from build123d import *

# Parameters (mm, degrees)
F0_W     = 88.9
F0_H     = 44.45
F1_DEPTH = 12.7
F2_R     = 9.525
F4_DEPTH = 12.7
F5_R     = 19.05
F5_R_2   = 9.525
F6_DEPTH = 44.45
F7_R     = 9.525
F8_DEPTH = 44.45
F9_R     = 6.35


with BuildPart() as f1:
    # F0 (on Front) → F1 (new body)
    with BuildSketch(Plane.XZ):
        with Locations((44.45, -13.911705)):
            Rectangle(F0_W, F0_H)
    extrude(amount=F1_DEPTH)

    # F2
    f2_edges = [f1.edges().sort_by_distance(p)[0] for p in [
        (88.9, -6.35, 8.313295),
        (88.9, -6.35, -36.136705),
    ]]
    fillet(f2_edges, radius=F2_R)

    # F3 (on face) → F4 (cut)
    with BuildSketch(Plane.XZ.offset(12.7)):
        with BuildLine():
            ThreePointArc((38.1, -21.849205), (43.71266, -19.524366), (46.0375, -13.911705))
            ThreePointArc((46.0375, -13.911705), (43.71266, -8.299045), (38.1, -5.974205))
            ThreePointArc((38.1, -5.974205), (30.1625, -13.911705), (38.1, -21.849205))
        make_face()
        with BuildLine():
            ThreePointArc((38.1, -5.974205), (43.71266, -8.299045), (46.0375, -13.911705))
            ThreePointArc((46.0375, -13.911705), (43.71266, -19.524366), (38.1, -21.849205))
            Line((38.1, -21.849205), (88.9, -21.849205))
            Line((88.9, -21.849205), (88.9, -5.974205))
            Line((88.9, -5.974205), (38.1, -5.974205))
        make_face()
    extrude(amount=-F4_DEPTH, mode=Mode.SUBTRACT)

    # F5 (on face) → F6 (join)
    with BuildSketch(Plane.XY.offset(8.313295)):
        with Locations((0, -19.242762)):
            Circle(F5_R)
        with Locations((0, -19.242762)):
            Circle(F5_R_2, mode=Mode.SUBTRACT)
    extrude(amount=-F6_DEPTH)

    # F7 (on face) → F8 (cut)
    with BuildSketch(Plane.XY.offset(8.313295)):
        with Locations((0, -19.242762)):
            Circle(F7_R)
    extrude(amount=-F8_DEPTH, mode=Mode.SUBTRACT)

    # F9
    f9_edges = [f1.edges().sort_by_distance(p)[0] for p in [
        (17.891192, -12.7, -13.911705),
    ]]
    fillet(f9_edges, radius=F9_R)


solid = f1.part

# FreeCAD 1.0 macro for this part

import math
import FreeCAD as App
import Part
import Sketcher
from FreeCAD import Vector
Q = App.Units.Quantity


def edges_at(feature, points):
    """Names of the edges that pass closest to the given points."""
    edges = feature.Shape.Edges
    near = lambda p: min(range(len(edges)), key=lambda i: edges[i].distToShape(Part.Vertex(*p))[0])
    return sorted({f"Edge{near(p) + 1}" for p in points})

doc = App.newDocument("Part")
body = doc.addObject("PartDesign::Body", "Body")

# Sketch on XZ plane
sketch1 = body.newObject("Sketcher::SketchObject", "Sketch")
sketch1.AttachmentSupport = (doc.getObject("XZ_Plane"), [""])
sketch1.MapMode = "FlatFace"
sketch1.addGeometry([
    Part.LineSegment(Vector(0, 8, 0), Vector(0, -36, 0)),
    Part.LineSegment(Vector(0, -36, 0), Vector(89, -36, 0)),
    Part.LineSegment(Vector(89, -36, 0), Vector(89, 8, 0)),
    Part.LineSegment(Vector(89, 8, 0), Vector(0, 8, 0)),
], False)
sketch1.addConstraint([
    Sketcher.Constraint("Coincident", 0, 2, 1, 1),
    Sketcher.Constraint("Coincident", 1, 2, 2, 1),
    Sketcher.Constraint("Coincident", 2, 2, 3, 1),
    Sketcher.Constraint("Coincident", 3, 2, 0, 1),
    Sketcher.Constraint("Vertical", 0),
    Sketcher.Constraint("Horizontal", 1),
    Sketcher.Constraint("Vertical", 2),
    Sketcher.Constraint("Horizontal", 3),
    Sketcher.Constraint("PointOnObject", 0, 2, -2),
    Sketcher.Constraint("DistanceX", 1, 1, 1, 2, Q("3.5 in")),
    Sketcher.Constraint("DistanceY", 0, 2, 0, 1, Q("1.75 in")),
    Sketcher.Constraint("DistanceY", 0, 2, -1, 1, 36.136705),
])
pad1 = body.newObject("PartDesign::Pad", "Pad")
pad1.Profile = sketch1
pad1.Length = Q("0.5 in")
doc.recompute()

fillet = body.newObject("PartDesign::Fillet", "Fillet")
fillet.Base = (pad1, edges_at(pad1, [(88.9, -6.35, 8.313), (88.9, -6.35, -36.137)]))
fillet.Radius = Q("0.375 in")

# Sketch on XZ plane
sketch2 = body.newObject("Sketcher::SketchObject", "Sketch001")
sketch2.AttachmentSupport = (doc.getObject("XZ_Plane"), [""])
sketch2.MapMode = "FlatFace"
sketch2.AttachmentOffset = App.Placement(Vector(0, 0, 0.5 * 25.4), App.Rotation())
sketch2.addGeometry([
    Part.ArcOfCircle(Part.Circle(Vector(38, -14, 0), Vector(0, 0, 1), 8), math.radians(90), math.radians(270)),
    Part.LineSegment(Vector(38, -22, 0), Vector(89, -22, 0)),
    Part.LineSegment(Vector(89, -22, 0), Vector(89, -6, 0)),
    Part.LineSegment(Vector(89, -6, 0), Vector(38, -6, 0)),
], False)
sketch2.addConstraint([
    Sketcher.Constraint("Tangent", 0, 2, 1, 1),
    Sketcher.Constraint("Coincident", 1, 2, 2, 1),
    Sketcher.Constraint("Coincident", 2, 2, 3, 1),
    Sketcher.Constraint("Tangent", 3, 2, 0, 1),
    Sketcher.Constraint("Horizontal", 1),
    Sketcher.Constraint("Vertical", 2),
    Sketcher.Constraint("Horizontal", 3),
    Sketcher.Constraint("DistanceX", 1, 1, 1, 2, Q("2 in")),
    Sketcher.Constraint("Radius", 0, Q("0.3125 in")),
    Sketcher.Constraint("DistanceX", -1, 1, 0, 3, Q("1.5 in")),
    Sketcher.Constraint("DistanceY", 0, 3, -1, 1, 13.911705),
])
pocket1 = body.newObject("PartDesign::Pocket", "Pocket")
pocket1.Profile = sketch2
pocket1.Length = Q("0.5 in")

# Sketch on XY plane
sketch3 = body.newObject("Sketcher::SketchObject", "Sketch002")
sketch3.AttachmentSupport = (doc.getObject("XY_Plane"), [""])
sketch3.MapMode = "FlatFace"
sketch3.AttachmentOffset = App.Placement(Vector(0, 0, 8.313295), App.Rotation())
sketch3.addGeometry([
    Part.Circle(Vector(0, -19, 0), Vector(0, 0, 1), 19),
    Part.Circle(Vector(0, -19, 0), Vector(0, 0, 1), 10),
], False)
sketch3.addConstraint([
    Sketcher.Constraint("Coincident", 1, 3, 0, 3),
    Sketcher.Constraint("PointOnObject", 0, 3, -2),
    Sketcher.Constraint("Diameter", 0, Q("1.5 in")),
    Sketcher.Constraint("Diameter", 1, Q("0.75 in")),
    Sketcher.Constraint("DistanceY", 0, 3, -1, 1, 19.242762),
])
pad2 = body.newObject("PartDesign::Pad", "Pad001")
pad2.Profile = sketch3
pad2.Length = Q("1.75 in")
pad2.Reversed = True

# Sketch on XY plane
sketch4 = body.newObject("Sketcher::SketchObject", "Sketch003")
sketch4.AttachmentSupport = (doc.getObject("XY_Plane"), [""])
sketch4.MapMode = "FlatFace"
sketch4.AttachmentOffset = App.Placement(Vector(0, 0, 8.313295), App.Rotation())
sketch4.addGeometry(Part.Circle(Vector(0, -19, 0), Vector(0, 0, 1), 10), False)
sketch4.addConstraint([
    Sketcher.Constraint("PointOnObject", 0, 3, -2),
    Sketcher.Constraint("Diameter", 0, Q("0.75 in")),
    Sketcher.Constraint("DistanceY", 0, 3, -1, 1, 19.242762),
])
pocket2 = body.newObject("PartDesign::Pocket", "Pocket001")
pocket2.Profile = sketch4
pocket2.Length = Q("1.75 in")
doc.recompute()

fillet2 = body.newObject("PartDesign::Fillet", "Fillet001")
fillet2.Base = (pocket2, edges_at(pocket2, [(17.891, -12.7, -13.912)]))
fillet2.Radius = Q("0.25 in")

doc.recompute()
